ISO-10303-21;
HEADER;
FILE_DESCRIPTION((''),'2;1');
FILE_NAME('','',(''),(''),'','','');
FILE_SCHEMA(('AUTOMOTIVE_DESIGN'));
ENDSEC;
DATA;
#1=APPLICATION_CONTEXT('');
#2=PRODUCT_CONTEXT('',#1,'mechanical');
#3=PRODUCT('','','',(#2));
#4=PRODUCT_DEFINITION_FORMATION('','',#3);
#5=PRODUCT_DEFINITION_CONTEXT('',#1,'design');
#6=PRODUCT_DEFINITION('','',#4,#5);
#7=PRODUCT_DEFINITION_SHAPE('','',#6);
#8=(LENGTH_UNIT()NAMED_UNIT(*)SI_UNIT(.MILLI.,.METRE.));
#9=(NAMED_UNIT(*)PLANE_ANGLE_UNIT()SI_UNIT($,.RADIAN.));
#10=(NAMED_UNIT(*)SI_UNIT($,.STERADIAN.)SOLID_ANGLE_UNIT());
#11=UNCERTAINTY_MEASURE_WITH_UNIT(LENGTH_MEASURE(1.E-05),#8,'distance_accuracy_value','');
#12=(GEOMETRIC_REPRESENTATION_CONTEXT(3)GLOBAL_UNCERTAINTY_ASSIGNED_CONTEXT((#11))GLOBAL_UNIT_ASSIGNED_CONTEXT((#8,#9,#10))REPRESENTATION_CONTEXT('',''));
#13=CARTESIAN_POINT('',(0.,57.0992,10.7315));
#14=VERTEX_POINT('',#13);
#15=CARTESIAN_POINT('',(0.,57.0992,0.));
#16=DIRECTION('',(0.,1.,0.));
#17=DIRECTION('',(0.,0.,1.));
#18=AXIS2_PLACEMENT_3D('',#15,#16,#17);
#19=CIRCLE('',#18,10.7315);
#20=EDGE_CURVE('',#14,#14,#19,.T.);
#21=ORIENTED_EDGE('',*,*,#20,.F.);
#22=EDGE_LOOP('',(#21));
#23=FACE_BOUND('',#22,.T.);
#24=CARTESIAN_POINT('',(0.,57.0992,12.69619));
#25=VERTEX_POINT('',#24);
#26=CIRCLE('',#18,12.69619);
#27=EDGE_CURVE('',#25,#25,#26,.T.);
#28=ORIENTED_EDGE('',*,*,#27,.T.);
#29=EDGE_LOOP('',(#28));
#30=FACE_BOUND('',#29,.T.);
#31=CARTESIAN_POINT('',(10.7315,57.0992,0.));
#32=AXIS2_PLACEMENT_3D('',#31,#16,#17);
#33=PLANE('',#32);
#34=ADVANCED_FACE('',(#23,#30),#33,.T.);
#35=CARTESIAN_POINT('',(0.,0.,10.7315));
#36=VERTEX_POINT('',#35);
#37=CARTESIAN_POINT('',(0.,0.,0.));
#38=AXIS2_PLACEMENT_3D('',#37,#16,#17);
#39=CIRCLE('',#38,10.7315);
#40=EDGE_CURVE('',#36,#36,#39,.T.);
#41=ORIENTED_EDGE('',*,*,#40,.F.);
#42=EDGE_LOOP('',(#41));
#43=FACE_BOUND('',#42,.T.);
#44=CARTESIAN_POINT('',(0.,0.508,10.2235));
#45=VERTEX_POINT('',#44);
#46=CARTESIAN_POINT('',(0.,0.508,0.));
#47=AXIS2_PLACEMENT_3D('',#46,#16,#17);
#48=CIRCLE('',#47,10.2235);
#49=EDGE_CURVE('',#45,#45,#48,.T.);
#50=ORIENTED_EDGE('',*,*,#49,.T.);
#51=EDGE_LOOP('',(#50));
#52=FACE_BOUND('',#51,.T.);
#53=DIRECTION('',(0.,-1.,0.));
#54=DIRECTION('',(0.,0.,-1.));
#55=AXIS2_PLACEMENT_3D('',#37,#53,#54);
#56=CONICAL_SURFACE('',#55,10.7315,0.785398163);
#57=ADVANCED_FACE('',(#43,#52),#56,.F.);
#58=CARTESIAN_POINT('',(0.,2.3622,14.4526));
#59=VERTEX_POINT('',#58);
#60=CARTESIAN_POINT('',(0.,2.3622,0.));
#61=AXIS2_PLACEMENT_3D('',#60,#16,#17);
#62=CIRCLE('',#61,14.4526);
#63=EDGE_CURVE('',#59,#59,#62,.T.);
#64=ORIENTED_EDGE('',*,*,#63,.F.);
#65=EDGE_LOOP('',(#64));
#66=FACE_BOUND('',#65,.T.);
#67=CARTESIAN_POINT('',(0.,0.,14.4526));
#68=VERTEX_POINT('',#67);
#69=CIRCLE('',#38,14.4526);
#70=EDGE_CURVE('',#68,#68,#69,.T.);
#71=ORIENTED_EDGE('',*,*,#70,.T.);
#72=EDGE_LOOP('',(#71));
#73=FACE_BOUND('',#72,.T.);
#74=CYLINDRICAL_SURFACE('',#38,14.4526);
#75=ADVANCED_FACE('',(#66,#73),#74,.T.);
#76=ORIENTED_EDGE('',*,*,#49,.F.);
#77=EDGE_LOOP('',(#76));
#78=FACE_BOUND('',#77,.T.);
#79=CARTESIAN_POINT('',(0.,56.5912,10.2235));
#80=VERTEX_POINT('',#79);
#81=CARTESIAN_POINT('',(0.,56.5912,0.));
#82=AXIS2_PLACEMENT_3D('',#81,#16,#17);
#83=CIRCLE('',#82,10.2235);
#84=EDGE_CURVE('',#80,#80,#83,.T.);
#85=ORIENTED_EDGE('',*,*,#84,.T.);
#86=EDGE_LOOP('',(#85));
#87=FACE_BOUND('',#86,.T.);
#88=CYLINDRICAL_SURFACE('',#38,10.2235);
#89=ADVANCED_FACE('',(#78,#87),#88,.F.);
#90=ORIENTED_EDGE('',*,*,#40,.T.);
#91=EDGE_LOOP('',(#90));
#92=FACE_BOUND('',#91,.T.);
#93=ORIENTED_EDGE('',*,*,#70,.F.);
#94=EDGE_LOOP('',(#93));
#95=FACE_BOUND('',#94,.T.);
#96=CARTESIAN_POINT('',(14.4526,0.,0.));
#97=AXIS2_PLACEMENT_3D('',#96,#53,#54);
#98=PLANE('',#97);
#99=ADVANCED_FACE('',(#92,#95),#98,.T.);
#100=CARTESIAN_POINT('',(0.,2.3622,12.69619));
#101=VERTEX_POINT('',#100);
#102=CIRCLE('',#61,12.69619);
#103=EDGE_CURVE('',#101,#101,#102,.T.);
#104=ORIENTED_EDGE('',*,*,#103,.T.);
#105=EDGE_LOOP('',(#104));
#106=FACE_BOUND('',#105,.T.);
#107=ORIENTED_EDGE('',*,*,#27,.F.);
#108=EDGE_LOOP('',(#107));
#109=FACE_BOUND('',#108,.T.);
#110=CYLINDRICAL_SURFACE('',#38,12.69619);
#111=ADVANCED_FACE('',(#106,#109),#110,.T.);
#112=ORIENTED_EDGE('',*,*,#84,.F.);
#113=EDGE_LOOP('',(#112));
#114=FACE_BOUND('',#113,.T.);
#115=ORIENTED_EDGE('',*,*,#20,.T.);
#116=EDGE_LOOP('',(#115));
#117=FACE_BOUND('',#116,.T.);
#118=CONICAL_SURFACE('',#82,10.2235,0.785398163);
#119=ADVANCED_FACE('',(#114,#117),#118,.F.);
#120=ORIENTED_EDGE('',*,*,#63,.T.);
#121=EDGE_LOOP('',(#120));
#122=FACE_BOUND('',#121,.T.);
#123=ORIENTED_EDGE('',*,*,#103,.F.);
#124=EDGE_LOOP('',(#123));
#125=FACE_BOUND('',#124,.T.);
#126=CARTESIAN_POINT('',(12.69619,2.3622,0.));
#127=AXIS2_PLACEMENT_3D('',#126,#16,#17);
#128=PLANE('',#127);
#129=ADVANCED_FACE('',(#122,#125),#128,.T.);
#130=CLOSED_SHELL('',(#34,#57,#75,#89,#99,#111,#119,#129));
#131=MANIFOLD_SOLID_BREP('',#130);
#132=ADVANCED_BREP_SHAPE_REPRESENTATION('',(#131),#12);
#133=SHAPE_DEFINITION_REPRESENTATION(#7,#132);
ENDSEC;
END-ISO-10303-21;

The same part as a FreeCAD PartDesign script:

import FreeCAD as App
import Part
import Sketcher

V = App.Vector
Q = App.Units.Quantity

doc = App.newDocument("Part")
body = doc.addObject("PartDesign::Body", "Body")

# Sketch on XY plane
sketch1 = doc.addObject("Sketcher::SketchObject", "Sketch")
body.addObject(sketch1)
sketch1.AttachmentSupport = (doc.XY_Plane, [""])
sketch1.MapMode = "FlatFace"
sketch1.addGeometry([
    Part.LineSegment(V(14.4526, 0, 0), V(10.7315, 0, 0)),  # 0
    Part.LineSegment(V(10.7315, 0, 0), V(10.2235, 0.508, 0)),  # 1
    Part.LineSegment(V(10.2235, 0.508, 0), V(10.2235, 56.5912, 0)),  # 2
    Part.LineSegment(V(10.2235, 56.5912, 0), V(10.7315, 57.0992, 0)),  # 3
    Part.LineSegment(V(10.7315, 57.0992, 0), V(12.69619, 57.0992, 0)),  # 4
    Part.LineSegment(V(12.69619, 57.0992, 0), V(12.69619, 2.3622, 0)),  # 5
    Part.LineSegment(V(12.69619, 2.3622, 0), V(14.4526, 2.3622, 0)),  # 6
    Part.LineSegment(V(14.4526, 2.3622, 0), V(14.4526, 0, 0)),  # 7
], False)
sketch1.addConstraint([
    Sketcher.Constraint("Coincident", 0, 2, 1, 1),
    Sketcher.Constraint("Coincident", 1, 2, 2, 1),
    Sketcher.Constraint("Coincident", 2, 2, 3, 1),
    Sketcher.Constraint("Coincident", 3, 2, 4, 1),
    Sketcher.Constraint("Coincident", 4, 2, 5, 1),
    Sketcher.Constraint("Coincident", 5, 2, 6, 1),
    Sketcher.Constraint("Coincident", 6, 2, 7, 1),
    Sketcher.Constraint("Coincident", 7, 2, 0, 1),
    Sketcher.Constraint("Horizontal", 0),
    Sketcher.Constraint("Vertical", 2),
    Sketcher.Constraint("Horizontal", 4),
    Sketcher.Constraint("Vertical", 5),
    Sketcher.Constraint("Horizontal", 6),
    Sketcher.Constraint("Vertical", 7),
    Sketcher.Constraint("PointOnObject", 0, 2, -1),
    Sketcher.Constraint("Perpendicular", 1, 3),
    Sketcher.Constraint("Vertical", 0, 2, 3, 2),
    Sketcher.Constraint("Equal", 1, 3),
    Sketcher.Constraint("DistanceY", 2, 1, 2, 2, Q("2.208 in")),
    Sketcher.Constraint("DistanceY", 5, 2, 5, 1, Q("2.155 in")),
    Sketcher.Constraint("DistanceY", 7, 2, 7, 1, Q("0.093 in")),
    Sketcher.Constraint("DistanceX", 0, 2, 0, 1, Q("0.1465 in")),
    Sketcher.Constraint("DistanceX", -1, 1, 6, 2, Q("0.569 in")),
    Sketcher.Constraint("DistanceX", 4, 1, 4, 2, Q("1.96469 mm")),
])
revolution = doc.addObject("PartDesign::Revolution", "Revolution")
body.addObject(revolution)
revolution.Profile = sketch1
revolution.ReferenceAxis = (sketch1, ["V_Axis"])
revolution.Angle = 360

doc.recompute()
